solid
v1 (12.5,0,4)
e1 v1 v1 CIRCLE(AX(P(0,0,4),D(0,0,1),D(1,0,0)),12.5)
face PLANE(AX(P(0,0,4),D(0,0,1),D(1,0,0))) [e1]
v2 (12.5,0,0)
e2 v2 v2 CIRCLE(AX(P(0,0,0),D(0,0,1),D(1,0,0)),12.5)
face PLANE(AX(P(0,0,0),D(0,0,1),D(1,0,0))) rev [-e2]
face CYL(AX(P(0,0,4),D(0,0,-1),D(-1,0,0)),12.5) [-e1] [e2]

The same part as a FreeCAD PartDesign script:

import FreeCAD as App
import Part
import Sketcher

doc = App.newDocument("Part")
body = doc.addObject("PartDesign::Body", "Body")

# Sketch on XY plane
sketch1 = body.newObject("Sketcher::SketchObject", "Sketch")
sketch1.AttachmentSupport = (doc.getObject("XY_Plane"), [""])
sketch1.MapMode = "FlatFace"
sketch1.addGeometry(Part.Circle(App.Vector(0, 0, 0), App.Vector(0, 0, 1), 12.5), False)
sketch1.addConstraint([
    Sketcher.Constraint("Coincident", 0, 3, -1, 1),
    Sketcher.Constraint("Diameter", 0, 25.0),
])
pad1 = body.newObject("PartDesign::Pad", "Pad")
pad1.Profile = sketch1
pad1.Length = 4

doc.recompute()
